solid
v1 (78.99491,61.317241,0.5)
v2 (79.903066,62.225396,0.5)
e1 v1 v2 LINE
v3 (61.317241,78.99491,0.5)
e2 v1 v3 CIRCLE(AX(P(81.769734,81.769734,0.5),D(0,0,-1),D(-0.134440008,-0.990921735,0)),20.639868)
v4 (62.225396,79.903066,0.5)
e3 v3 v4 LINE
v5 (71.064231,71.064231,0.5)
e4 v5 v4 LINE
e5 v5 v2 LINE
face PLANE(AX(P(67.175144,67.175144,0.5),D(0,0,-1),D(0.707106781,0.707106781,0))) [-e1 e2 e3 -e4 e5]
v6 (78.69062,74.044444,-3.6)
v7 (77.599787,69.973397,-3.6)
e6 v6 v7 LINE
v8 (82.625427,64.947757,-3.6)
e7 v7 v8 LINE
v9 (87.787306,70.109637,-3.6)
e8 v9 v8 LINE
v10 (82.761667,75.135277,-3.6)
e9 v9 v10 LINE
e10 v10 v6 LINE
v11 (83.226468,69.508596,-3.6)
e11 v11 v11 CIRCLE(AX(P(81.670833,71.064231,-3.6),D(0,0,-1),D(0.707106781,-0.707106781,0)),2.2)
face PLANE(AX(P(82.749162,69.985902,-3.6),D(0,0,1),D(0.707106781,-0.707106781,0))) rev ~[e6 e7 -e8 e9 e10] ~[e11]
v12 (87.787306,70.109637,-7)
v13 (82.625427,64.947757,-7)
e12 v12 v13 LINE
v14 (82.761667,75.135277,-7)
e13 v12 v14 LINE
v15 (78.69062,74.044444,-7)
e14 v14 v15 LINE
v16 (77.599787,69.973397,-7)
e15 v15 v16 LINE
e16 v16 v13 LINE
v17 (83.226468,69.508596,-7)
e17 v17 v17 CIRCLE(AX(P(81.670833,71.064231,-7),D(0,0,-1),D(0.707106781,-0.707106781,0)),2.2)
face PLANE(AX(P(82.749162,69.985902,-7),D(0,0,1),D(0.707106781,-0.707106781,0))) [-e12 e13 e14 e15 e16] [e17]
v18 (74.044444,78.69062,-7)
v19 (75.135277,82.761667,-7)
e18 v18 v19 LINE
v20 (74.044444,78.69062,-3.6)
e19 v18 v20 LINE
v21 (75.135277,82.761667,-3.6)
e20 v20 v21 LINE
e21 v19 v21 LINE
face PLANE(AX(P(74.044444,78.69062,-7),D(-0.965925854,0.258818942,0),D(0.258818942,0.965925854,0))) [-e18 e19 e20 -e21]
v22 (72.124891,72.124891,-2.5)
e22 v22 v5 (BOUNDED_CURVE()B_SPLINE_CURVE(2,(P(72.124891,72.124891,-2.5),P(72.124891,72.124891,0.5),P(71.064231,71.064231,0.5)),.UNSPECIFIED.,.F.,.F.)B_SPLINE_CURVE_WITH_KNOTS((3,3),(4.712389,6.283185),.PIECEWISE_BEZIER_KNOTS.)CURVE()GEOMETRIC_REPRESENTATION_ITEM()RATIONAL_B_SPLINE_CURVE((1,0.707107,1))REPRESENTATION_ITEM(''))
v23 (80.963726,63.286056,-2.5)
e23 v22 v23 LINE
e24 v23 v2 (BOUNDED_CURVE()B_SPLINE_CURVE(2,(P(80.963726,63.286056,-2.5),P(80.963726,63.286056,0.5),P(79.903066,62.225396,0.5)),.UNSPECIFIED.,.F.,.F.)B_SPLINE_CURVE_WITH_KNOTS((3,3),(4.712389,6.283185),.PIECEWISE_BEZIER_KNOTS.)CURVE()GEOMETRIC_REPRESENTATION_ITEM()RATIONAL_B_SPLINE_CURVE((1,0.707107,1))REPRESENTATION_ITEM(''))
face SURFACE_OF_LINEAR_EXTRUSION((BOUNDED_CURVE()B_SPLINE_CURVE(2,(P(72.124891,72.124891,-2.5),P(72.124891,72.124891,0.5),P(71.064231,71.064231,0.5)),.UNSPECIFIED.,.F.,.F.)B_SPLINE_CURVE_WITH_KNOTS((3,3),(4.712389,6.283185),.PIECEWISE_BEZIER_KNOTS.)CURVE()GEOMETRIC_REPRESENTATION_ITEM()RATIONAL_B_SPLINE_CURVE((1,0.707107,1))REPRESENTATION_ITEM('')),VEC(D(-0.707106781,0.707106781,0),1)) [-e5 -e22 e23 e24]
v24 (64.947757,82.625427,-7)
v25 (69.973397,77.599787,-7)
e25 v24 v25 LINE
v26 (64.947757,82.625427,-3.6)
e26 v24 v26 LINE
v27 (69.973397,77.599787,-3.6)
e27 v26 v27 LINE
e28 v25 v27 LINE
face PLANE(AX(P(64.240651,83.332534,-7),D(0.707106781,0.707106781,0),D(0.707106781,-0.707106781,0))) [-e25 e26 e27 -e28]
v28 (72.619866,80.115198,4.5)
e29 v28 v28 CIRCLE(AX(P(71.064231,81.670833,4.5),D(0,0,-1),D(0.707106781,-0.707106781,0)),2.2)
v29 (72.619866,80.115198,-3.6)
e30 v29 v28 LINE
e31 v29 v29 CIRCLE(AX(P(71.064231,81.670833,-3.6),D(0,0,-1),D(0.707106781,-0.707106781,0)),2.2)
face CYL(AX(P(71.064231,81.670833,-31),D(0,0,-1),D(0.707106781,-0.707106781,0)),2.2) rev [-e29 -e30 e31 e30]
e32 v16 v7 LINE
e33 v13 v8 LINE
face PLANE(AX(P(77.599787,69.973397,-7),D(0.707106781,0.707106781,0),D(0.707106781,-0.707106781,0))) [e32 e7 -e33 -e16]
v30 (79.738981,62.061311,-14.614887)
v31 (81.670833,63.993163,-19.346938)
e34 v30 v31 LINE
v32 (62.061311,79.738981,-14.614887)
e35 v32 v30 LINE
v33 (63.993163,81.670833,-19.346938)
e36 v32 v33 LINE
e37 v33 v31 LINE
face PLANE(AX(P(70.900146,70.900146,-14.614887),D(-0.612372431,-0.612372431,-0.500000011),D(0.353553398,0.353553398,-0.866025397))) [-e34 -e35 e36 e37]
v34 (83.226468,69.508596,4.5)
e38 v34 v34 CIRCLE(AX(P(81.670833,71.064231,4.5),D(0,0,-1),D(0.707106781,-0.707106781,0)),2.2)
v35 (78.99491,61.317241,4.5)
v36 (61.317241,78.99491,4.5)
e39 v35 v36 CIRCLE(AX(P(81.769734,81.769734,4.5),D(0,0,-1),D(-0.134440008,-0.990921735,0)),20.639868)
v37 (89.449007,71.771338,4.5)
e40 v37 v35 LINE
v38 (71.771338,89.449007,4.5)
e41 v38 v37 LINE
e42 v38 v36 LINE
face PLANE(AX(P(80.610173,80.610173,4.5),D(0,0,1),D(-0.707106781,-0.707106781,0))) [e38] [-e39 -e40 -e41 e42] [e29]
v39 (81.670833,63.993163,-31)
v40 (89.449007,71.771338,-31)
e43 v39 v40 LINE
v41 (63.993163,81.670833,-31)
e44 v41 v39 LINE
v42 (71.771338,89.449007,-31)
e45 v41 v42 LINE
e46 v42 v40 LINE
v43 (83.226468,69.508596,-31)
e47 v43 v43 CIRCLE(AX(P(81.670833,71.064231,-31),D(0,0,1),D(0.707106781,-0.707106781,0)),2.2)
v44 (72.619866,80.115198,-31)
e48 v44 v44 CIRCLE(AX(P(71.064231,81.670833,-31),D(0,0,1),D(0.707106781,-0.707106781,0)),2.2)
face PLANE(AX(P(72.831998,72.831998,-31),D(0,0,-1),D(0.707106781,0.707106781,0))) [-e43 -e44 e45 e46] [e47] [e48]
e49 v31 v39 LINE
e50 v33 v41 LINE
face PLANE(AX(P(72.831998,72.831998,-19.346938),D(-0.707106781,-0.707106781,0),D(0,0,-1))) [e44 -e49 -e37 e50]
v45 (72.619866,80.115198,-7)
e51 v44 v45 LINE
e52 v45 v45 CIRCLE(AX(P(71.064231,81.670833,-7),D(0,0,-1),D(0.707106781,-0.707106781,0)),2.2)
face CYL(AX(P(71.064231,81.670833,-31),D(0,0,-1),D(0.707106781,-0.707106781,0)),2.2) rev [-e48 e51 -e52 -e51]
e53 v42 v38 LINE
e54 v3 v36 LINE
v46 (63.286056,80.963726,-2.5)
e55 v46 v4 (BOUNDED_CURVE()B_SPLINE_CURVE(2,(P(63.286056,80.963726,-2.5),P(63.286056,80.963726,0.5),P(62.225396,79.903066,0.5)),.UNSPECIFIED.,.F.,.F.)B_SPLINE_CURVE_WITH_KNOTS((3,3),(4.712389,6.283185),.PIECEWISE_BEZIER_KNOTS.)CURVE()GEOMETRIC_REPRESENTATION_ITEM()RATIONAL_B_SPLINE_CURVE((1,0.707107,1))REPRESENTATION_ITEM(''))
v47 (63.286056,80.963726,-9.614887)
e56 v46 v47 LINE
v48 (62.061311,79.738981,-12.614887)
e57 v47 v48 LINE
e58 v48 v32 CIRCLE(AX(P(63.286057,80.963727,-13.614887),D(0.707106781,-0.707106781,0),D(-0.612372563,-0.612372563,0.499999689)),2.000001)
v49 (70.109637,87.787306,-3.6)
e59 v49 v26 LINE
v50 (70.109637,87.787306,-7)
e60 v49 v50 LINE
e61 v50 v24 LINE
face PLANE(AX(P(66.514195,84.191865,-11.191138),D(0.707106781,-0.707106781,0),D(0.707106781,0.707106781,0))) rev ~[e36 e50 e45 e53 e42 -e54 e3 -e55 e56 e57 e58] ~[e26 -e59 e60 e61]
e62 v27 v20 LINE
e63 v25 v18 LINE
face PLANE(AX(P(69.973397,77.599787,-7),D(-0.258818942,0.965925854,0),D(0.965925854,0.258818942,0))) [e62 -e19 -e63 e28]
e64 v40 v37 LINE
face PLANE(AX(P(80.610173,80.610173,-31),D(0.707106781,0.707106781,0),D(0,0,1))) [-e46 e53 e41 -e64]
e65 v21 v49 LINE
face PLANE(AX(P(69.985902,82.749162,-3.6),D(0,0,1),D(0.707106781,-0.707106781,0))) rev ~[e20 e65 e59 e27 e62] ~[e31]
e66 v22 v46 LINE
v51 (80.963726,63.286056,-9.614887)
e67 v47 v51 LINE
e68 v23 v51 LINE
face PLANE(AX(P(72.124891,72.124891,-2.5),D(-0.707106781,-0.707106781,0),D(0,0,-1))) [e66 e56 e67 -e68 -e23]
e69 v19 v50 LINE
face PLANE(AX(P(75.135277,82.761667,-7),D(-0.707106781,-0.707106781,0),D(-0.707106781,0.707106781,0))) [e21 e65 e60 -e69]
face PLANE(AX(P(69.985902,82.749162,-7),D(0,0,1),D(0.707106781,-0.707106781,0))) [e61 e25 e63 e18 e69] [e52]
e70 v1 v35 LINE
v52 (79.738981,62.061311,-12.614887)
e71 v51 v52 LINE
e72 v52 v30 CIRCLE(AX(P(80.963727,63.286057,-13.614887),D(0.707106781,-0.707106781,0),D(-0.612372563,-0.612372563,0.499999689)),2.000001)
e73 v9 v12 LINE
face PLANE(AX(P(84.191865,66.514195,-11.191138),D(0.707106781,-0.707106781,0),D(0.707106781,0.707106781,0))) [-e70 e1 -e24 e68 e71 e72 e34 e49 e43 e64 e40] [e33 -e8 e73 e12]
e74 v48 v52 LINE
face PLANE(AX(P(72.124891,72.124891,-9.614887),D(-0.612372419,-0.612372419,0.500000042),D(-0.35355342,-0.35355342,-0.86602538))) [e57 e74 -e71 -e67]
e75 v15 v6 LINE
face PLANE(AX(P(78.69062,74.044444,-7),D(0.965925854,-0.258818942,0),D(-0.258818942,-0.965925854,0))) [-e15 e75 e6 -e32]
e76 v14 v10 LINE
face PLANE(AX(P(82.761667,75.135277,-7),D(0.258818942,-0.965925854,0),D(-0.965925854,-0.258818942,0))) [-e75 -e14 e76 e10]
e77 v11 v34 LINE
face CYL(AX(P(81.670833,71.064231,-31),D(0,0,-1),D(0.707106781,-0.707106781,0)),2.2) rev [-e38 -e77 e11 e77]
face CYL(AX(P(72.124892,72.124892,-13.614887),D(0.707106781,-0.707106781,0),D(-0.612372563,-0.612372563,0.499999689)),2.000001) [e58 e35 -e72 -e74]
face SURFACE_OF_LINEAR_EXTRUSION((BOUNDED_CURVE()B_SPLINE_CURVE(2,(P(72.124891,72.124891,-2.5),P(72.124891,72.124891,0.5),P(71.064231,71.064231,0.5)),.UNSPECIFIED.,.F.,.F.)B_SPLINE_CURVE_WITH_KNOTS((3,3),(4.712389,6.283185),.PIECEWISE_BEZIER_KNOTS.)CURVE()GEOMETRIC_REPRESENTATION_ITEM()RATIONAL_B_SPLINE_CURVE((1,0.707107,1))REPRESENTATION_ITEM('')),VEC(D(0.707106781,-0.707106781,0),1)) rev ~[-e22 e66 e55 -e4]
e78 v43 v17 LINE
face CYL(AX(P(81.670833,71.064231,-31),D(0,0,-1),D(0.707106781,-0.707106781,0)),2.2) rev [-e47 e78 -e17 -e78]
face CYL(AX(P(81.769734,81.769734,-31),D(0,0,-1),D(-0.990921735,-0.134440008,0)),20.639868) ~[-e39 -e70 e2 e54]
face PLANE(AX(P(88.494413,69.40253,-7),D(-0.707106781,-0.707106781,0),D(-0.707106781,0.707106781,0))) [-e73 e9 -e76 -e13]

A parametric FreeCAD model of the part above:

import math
import FreeCAD as App
import Part
import Sketcher
from FreeCAD import Vector
Q = App.Units.Quantity


def add_polygon(sketch, points):
    """Adds a closed chain of lines whose ends are joined by coincident constraints."""
    first, n = sketch.GeometryCount, len(points)
    for a, b in zip(points, points[1:] + points[:1]):
        sketch.addGeometry(Part.LineSegment(App.Vector(*a, 0), App.Vector(*b, 0)), False)
    for i in range(n):
        sketch.addConstraint(Sketcher.Constraint("Coincident", first + i, 2, first + (i + 1) % n, 1))

doc = App.newDocument("Part")
params = doc.addObject("Spreadsheet::Sheet", "Params")
for row, (alias, value) in enumerate([
    ("sketch1_radius", "2.000001 mm"),
    ("sketch1_width", "11 mm"),
    ("sketch1_width2", "19 mm"),
    ("sketch1_height", "4 mm"),
    ("pad1_length", "25 mm"),
    ("sketch2_diameter", "4.4 mm"),
    ("sketch2_width", "1 mm"),
    ("sketch2_width2", "27 mm"),
    ("sketch3_height", "7.3 mm"),
    ("pocket2_length", "3.4 mm"),
], start=1):
    params.set(f"A{row}", alias)
    params.set(f"B{row}", "=" + value)
    params.setAlias(f"B{row}", alias)

body = doc.addObject("PartDesign::Body", "Body")

# Sketch on YZ plane
sketch1 = body.newObject("Sketcher::SketchObject", "Sketch")
sketch1.AttachmentSupport = (doc.getObject("YZ_Plane"), [""])
sketch1.MapMode = "FlatFace"
sketch1.addGeometry([
    Part.LineSegment(Vector(-1, 28.5, 0), Vector(-1, 21.385113, 0)),  # 0
    Part.LineSegment(Vector(-1, 21.385113, 0), Vector(-2.732051, 18.385113, 0)),  # 1
    Part.ArcOfCircle(Part.Circle(Vector(-0.999999, 17.385113, 0), Vector(0, 0, 1), 2.000001), math.radians(150.000021), math.radians(209.999979)),  # 2
    Part.LineSegment(Vector(-2.732051, 16.385113, 0), Vector(0, 11.653062, 0)),  # 3
    Part.LineSegment(Vector(0, 11.653062, 0), Vector(0, 0, 0)),  # 4
    Part.LineSegment(Vector(0, 0, 0), Vector(11, 0, 0)),  # 5
    Part.LineSegment(Vector(11, 0, 0), Vector(11, 35.5, 0)),  # 6
    Part.LineSegment(Vector(11, 35.5, 0), Vector(-8, 35.5, 0)),  # 7
    Part.LineSegment(Vector(-8, 35.5, 0), Vector(-8, 31.5, 0)),  # 8
    Part.LineSegment(Vector(-8, 31.5, 0), Vector(-2.5, 31.5, 0)),  # 9
    Part.BSplineCurve([Vector(-1, 28.5, 0), Vector(-1, 31.5, 0), Vector(-2.5, 31.5, 0)], [3, 3], [4.712389, 6.283185], False, 2, [1, 0.707107, 1], False),  # 10
], False)
sketch1.addConstraint([
    Sketcher.Constraint("Block", 10),
    Sketcher.Constraint("Coincident", 0, 2, 1, 1),
    Sketcher.Constraint("Tangent", 1, 2, 2, 1),
    Sketcher.Constraint("Tangent", 2, 2, 3, 1),
    Sketcher.Constraint("Coincident", 3, 2, 4, 1),
    Sketcher.Constraint("Coincident", 4, 2, 5, 1),
    Sketcher.Constraint("Coincident", 5, 2, 6, 1),
    Sketcher.Constraint("Coincident", 6, 2, 7, 1),
    Sketcher.Constraint("Coincident", 7, 2, 8, 1),
    Sketcher.Constraint("Coincident", 8, 2, 9, 1),
    Sketcher.Constraint("Coincident", 9, 2, 10, 2),
    Sketcher.Constraint("Coincident", 10, 1, 0, 1),
    Sketcher.Constraint("Vertical", 0),
    Sketcher.Constraint("Vertical", 4),
    Sketcher.Constraint("Horizontal", 5),
    Sketcher.Constraint("Vertical", 6),
    Sketcher.Constraint("Horizontal", 7),
    Sketcher.Constraint("Vertical", 8),
    Sketcher.Constraint("Horizontal", 9),
    Sketcher.Constraint("Coincident", 4, 2, -1, 1),
    Sketcher.Constraint("Vertical", 2, 3, 0, 2),
    Sketcher.Constraint("Vertical", 1, 2, 2, 2),
    Sketcher.Constraint("Radius", 2, Q("2.000001 mm")),
    Sketcher.Constraint("DistanceX", 5, 1, 5, 2, Q("11 mm")),
    Sketcher.Constraint("DistanceX", 7, 2, 7, 1, Q("19 mm")),
    Sketcher.Constraint("DistanceY", 8, 2, 8, 1, Q("4 mm")),
    Sketcher.Constraint("Angle", 1, Q("-120.000003 deg")),
    Sketcher.Constraint("DistanceY", 0, 2, 0, 1, Q("7.114887 mm")),
])
sketch1.setExpression("Constraints[22]", "Params.sketch1_radius")
sketch1.setExpression("Constraints[23]", "Params.sketch1_width")
sketch1.setExpression("Constraints[24]", "Params.sketch1_width2")
sketch1.setExpression("Constraints[25]", "Params.sketch1_height")
pad1 = body.newObject("PartDesign::Pad", "Pad")
pad1.Profile = sketch1
pad1.setExpression("Length", "Params.pad1_length")
pad1.Midplane = True

# Sketch on XY plane
sketch2 = body.newObject("Sketcher::SketchObject", "Sketch001")
sketch2.AttachmentSupport = (doc.getObject("XY_Plane"), [""])
sketch2.MapMode = "FlatFace"
sketch2.addGeometry([
    Part.Circle(Vector(-7.5, 5, 0), Vector(0, 0, 1), 2.2),  # 0
    Part.Circle(Vector(7.5, 5, 0), Vector(0, 0, 1), 2.2),  # 1
    Part.ArcOfCircle(Part.Circle(Vector(0, 12.639868, 0), Vector(0, 0, 1), 20.639868), math.radians(-127.27376), math.radians(-52.72624)),  # 2
    Part.LineSegment(Vector(-12.5, -3.784326, 0), Vector(-13.5, -3.784326, 0)),  # 3
    Part.LineSegment(Vector(-13.5, -3.784326, 0), Vector(-13.5, -9, 0)),  # 4
    Part.LineSegment(Vector(-13.5, -9, 0), Vector(13.5, -9, 0)),  # 5
    Part.LineSegment(Vector(13.5, -9, 0), Vector(13.5, -3.784326, 0)),  # 6
    Part.LineSegment(Vector(13.5, -3.784326, 0), Vector(12.5, -3.784326, 0)),  # 7
], False)
sketch2.addConstraint([
    Sketcher.Constraint("Coincident", 2, 1, 3, 1),
    Sketcher.Constraint("Coincident", 3, 2, 4, 1),
    Sketcher.Constraint("Coincident", 4, 2, 5, 1),
    Sketcher.Constraint("Coincident", 5, 2, 6, 1),
    Sketcher.Constraint("Coincident", 6, 2, 7, 1),
    Sketcher.Constraint("Coincident", 7, 2, 2, 2),
    Sketcher.Constraint("Horizontal", 3),
    Sketcher.Constraint("Vertical", 4),
    Sketcher.Constraint("Horizontal", 5),
    Sketcher.Constraint("Vertical", 6),
    Sketcher.Constraint("Horizontal", 7),
    Sketcher.Constraint("Equal", 0, 1),
    Sketcher.Constraint("Symmetric", 0, 3, 1, 3, -2),
    Sketcher.Constraint("Symmetric", 3, 2, 6, 2, -2),
    Sketcher.Constraint("PointOnObject", 2, 3, -2),
    Sketcher.Constraint("Diameter", 0, Q("4.4 mm")),
    Sketcher.Constraint("DistanceX", 3, 2, 3, 1, Q("1 mm")),
    Sketcher.Constraint("DistanceX", 5, 1, 5, 2, Q("27 mm")),
    Sketcher.Constraint("DistanceY", -1, 1, 0, 3, Q("5 mm")),
    Sketcher.Constraint("DistanceY", 4, 2, -1, 1, Q("9 mm")),
    Sketcher.Constraint("DistanceX", 0, 3, 1, 3, Q("15 mm")),
    Sketcher.Constraint("Radius", 2, Q("20.639868 mm")),
    Sketcher.Constraint("DistanceY", 4, 2, 4, 1, Q("5.215674 mm")),
])
sketch2.setExpression("Constraints[15]", "Params.sketch2_diameter")
sketch2.setExpression("Constraints[16]", "Params.sketch2_width")
sketch2.setExpression("Constraints[17]", "Params.sketch2_width2")
pocket1 = body.newObject("PartDesign::Pocket", "Pocket")
pocket1.Profile = sketch2
pocket1.Type = "ThroughAll"
pocket1.Reversed = True

# Sketch on XY plane
sketch3 = body.newObject("Sketcher::SketchObject", "Sketch002")
sketch3.AttachmentSupport = (doc.getObject("XY_Plane"), [""])
sketch3.MapMode = "FlatFace"
sketch3.AttachmentOffset = App.Placement(Vector(0, 0, 24), App.Rotation())
add_polygon(sketch3, [(-5.392672, 1.35), (-3.285343, 5), (-5.392672, 8.65), (-13.5, 8.65), (-13.5, 1.35)])  # lines 0-4
add_polygon(sketch3, [(5.392672, 8.65), (3.285343, 5), (5.392672, 1.35), (13.5, 1.35), (13.5, 8.65)])  # lines 5-9
sketch3.addConstraint([
    Sketcher.Constraint("Horizontal", 2),
    Sketcher.Constraint("Vertical", 3),
    Sketcher.Constraint("Horizontal", 4),
    Sketcher.Constraint("Horizontal", 7),
    Sketcher.Constraint("Vertical", 8),
    Sketcher.Constraint("Horizontal", 9),
    Sketcher.Constraint("Symmetric", 0, 2, 5, 2, -2),
    Sketcher.Constraint("Symmetric", 4, 2, 6, 2, -2),
    Sketcher.Constraint("Symmetric", 2, 2, 8, 2, -2),
    Sketcher.Constraint("Parallel", 0, 5),
    Sketcher.Constraint("Parallel", 1, 6),
    Sketcher.Constraint("Vertical", 1, 2, 4, 2),
    Sketcher.Constraint("Angle", 0, Q("59.999994 deg")),
    Sketcher.Constraint("DistanceY", 3, 2, 3, 1, Q("7.3 mm")),
    Sketcher.Constraint("DistanceY", -1, 1, 0, 2, Q("5 mm")),
    Sketcher.Constraint("DistanceX", 2, 2, -1, 1, Q("13.5 mm")),
    Sketcher.Constraint("DistanceX", 2, 2, 2, 1, Q("8.107328 mm")),
])
sketch3.setExpression("Constraints[23]", "Params.sketch3_height")
pocket2 = body.newObject("PartDesign::Pocket", "Pocket001")
pocket2.Profile = sketch3
pocket2.setExpression("Length", "Params.pocket2_length")
pocket2.Reversed = True
body2 = doc.addObject("PartDesign::Body", "Body001")
doc.recompute()

body.Placement = App.Placement(Vector(72.831998, 72.831998, -31), App.Rotation(Vector(0, 0, -1), 45))
boolean = body2.newObject("PartDesign::Boolean", "Boolean")
boolean.Type = "Fuse"
boolean.addObjects([body])

doc.recompute()
